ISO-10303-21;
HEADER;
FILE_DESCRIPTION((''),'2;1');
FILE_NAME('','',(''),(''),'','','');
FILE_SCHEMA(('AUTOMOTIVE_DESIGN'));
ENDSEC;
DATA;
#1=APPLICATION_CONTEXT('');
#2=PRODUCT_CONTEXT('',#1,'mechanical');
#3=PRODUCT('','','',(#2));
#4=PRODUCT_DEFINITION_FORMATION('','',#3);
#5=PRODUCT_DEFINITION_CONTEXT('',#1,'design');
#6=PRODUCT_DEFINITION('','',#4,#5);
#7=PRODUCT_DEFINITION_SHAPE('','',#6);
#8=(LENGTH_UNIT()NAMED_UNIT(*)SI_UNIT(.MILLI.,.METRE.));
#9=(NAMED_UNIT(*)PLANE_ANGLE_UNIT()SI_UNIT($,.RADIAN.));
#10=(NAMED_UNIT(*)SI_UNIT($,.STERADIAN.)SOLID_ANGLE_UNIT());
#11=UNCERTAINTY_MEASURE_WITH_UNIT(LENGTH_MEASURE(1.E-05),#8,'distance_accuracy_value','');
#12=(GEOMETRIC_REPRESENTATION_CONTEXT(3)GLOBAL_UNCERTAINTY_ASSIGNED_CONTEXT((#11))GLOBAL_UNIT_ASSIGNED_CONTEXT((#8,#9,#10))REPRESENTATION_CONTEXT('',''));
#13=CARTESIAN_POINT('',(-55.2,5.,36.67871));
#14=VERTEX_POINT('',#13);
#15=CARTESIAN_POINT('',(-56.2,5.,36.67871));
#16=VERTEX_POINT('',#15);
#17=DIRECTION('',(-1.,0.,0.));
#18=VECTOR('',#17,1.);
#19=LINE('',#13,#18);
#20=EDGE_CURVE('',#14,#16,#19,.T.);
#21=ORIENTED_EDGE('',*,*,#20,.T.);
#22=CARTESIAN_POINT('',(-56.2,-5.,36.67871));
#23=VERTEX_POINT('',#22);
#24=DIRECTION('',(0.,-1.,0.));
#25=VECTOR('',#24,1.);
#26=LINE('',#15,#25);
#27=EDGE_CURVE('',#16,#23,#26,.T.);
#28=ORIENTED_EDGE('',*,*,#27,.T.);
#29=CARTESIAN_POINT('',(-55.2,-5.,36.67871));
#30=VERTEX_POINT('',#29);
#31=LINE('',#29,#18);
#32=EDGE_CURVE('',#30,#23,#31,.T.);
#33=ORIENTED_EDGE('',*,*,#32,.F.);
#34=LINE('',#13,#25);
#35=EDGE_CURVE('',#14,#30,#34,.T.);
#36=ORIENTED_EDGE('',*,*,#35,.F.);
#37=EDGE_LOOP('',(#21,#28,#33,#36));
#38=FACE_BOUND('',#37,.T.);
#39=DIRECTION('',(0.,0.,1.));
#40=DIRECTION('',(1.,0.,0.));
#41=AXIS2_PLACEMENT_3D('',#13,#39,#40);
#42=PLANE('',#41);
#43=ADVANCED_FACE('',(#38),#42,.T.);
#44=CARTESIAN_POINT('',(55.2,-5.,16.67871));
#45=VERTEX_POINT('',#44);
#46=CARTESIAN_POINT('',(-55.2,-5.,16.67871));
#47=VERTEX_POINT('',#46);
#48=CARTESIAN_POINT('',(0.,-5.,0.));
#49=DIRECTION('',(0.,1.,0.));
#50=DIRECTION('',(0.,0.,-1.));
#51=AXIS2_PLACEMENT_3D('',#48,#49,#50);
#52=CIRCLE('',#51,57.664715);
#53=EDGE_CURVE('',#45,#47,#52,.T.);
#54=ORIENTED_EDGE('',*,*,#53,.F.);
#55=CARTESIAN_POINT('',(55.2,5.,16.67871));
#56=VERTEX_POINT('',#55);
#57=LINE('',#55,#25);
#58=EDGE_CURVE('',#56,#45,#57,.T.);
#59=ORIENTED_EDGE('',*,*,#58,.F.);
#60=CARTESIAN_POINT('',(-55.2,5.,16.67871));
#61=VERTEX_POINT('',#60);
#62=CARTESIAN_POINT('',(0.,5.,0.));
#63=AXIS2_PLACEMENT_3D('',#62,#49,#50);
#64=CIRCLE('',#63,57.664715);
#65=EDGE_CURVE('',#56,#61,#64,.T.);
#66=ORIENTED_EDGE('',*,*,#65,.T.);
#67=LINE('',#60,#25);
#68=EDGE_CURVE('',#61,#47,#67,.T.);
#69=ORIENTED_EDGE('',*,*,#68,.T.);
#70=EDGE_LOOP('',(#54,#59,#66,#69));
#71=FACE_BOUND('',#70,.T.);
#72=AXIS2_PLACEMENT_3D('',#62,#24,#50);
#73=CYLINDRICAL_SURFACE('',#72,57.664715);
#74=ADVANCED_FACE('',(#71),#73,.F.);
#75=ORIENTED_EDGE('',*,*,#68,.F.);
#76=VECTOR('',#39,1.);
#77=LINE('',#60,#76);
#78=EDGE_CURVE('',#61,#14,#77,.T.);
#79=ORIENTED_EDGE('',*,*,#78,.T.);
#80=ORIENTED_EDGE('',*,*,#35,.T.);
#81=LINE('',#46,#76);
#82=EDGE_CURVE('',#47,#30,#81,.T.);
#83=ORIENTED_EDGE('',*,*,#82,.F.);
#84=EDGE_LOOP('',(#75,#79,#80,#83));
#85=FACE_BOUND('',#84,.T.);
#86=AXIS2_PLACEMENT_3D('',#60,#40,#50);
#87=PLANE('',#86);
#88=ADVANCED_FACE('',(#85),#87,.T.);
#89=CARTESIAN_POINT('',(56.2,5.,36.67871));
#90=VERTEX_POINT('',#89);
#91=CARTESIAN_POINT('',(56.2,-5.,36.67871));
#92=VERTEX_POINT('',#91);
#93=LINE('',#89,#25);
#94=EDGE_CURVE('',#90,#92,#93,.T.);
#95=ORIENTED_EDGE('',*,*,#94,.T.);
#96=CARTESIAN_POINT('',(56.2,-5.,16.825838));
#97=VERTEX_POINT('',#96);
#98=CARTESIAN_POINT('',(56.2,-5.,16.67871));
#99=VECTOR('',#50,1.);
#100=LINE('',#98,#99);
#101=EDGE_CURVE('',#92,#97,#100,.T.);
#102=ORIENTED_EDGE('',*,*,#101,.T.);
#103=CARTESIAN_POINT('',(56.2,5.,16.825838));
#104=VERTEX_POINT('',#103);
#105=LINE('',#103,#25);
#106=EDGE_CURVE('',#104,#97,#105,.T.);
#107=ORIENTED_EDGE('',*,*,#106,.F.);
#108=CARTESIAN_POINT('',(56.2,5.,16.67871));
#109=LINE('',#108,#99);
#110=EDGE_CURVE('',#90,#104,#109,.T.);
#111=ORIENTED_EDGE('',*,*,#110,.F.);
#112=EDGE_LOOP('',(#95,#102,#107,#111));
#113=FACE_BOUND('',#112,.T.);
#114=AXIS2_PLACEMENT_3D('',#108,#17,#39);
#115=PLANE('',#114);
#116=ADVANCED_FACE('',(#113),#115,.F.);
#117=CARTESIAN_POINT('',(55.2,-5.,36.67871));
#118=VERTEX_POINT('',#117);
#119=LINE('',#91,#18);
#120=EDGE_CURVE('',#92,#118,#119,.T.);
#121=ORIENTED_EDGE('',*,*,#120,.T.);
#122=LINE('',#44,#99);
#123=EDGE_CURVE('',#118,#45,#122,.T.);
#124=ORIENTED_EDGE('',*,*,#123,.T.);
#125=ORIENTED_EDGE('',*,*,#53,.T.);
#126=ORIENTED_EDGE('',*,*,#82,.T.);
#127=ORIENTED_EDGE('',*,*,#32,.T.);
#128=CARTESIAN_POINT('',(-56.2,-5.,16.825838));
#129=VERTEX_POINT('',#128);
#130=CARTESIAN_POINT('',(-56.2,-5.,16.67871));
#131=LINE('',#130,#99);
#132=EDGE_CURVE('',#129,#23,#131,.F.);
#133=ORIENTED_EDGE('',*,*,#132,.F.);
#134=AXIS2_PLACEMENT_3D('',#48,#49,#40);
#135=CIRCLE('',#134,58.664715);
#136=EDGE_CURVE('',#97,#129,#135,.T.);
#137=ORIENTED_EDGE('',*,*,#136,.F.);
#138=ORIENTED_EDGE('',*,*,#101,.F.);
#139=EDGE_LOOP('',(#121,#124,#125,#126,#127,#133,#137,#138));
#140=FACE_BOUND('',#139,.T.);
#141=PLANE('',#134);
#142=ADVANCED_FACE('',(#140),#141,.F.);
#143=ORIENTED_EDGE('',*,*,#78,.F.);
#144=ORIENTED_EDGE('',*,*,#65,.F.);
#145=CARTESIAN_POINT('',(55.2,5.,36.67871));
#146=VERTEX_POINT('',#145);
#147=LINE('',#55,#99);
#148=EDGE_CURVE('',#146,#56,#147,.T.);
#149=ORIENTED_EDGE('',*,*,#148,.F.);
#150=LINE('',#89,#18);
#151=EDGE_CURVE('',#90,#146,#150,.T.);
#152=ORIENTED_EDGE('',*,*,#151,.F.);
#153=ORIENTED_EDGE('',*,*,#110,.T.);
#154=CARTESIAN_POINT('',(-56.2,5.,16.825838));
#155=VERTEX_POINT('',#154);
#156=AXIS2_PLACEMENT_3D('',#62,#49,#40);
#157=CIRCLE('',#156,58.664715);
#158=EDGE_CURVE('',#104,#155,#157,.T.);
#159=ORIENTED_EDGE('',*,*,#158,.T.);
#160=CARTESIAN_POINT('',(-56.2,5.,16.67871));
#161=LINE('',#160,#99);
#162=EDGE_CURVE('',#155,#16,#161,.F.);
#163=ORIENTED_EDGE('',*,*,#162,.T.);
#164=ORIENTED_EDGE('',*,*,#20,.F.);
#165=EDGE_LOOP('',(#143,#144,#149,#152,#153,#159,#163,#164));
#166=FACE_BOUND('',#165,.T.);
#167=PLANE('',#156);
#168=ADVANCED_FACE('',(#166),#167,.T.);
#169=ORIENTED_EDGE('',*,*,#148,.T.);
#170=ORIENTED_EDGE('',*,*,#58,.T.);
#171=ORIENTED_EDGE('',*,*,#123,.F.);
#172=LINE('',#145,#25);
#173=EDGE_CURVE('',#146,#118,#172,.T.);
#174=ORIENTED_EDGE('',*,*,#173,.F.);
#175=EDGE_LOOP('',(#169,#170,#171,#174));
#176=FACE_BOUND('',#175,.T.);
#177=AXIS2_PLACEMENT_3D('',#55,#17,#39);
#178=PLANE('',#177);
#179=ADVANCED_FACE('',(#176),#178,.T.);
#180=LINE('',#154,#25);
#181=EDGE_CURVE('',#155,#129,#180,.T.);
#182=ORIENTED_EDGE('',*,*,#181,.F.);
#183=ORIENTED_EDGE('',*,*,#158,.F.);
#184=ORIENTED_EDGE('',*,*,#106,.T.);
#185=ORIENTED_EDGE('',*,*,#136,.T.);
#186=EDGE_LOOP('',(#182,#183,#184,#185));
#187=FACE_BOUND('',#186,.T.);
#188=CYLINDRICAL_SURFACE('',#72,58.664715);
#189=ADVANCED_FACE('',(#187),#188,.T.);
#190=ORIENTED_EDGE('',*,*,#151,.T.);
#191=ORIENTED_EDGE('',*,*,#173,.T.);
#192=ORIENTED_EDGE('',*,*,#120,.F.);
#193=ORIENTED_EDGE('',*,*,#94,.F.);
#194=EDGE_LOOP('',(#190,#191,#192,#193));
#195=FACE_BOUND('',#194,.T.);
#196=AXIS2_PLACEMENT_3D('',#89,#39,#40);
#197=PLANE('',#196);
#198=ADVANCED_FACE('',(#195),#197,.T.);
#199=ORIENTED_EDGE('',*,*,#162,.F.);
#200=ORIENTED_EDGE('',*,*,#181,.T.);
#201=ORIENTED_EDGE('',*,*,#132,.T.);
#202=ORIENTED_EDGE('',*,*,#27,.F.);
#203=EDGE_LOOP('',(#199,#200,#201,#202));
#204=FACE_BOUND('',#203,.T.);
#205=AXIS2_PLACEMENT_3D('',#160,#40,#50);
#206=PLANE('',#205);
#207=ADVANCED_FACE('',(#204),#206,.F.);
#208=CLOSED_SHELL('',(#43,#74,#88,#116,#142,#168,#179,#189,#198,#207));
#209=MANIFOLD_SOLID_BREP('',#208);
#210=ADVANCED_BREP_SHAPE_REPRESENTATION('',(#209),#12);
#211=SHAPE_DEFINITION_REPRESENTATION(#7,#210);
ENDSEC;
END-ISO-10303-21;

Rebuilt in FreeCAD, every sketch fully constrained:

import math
import FreeCAD as App
import Part
import Sketcher
Q = App.Units.Quantity

doc = App.newDocument("Part")
body = doc.addObject("PartDesign::Body", "Body")

sketch1 = body.newObject("Sketcher::SketchObject", "Sketch")
sketch1.AttachmentSupport = (doc.getObject("XZ_Plane"), [""])
sketch1.MapMode = "FlatFace"
sketch1.addGeometry([
    Part.LineSegment(App.Vector(55.2, 16.67871, 0), App.Vector(55.2, 36.67871, 0)),
    Part.LineSegment(App.Vector(55.2, 36.67871, 0), App.Vector(56.2, 36.67871, 0)),
    Part.LineSegment(App.Vector(56.2, 36.67871, 0), App.Vector(56.2, 16.825838, 0)),
    Part.ArcOfCircle(Part.Circle(App.Vector(0, 0, 0), App.Vector(0, 0, 1), 58.664715), math.radians(163.332714), math.radians(376.667286)),
    Part.LineSegment(App.Vector(-56.2, 16.825838, 0), App.Vector(-56.2, 36.67871, 0)),
    Part.LineSegment(App.Vector(-56.2, 36.67871, 0), App.Vector(-55.2, 36.67871, 0)),
    Part.LineSegment(App.Vector(-55.2, 36.67871, 0), App.Vector(-55.2, 16.67871, 0)),
    Part.ArcOfCircle(Part.Circle(App.Vector(0, 0, 0), App.Vector(0, 0, 1), 57.664715), math.radians(163.187779), math.radians(376.812221)),
], False)
sketch1.addConstraint([
    Sketcher.Constraint("Coincident", 0, 2, 1, 1),
    Sketcher.Constraint("Coincident", 1, 2, 2, 1),
    Sketcher.Constraint("Coincident", 2, 2, 3, 2),
    Sketcher.Constraint("Coincident", 3, 1, 4, 1),
    Sketcher.Constraint("Coincident", 4, 2, 5, 1),
    Sketcher.Constraint("Coincident", 5, 2, 6, 1),
    Sketcher.Constraint("Coincident", 6, 2, 7, 1),
    Sketcher.Constraint("Coincident", 7, 2, 0, 1),
    Sketcher.Constraint("Vertical", 0),
    Sketcher.Constraint("Horizontal", 1),
    Sketcher.Constraint("Vertical", 2),
    Sketcher.Constraint("Vertical", 4),
    Sketcher.Constraint("Horizontal", 5),
    Sketcher.Constraint("Vertical", 6),
    Sketcher.Constraint("Coincident", 3, 3, -1, 1),
    Sketcher.Constraint("Coincident", 7, 3, -1, 1),
    Sketcher.Constraint("Symmetric", 1, 2, 4, 2, -2),
    Sketcher.Constraint("Horizontal", 6, 2, 7, 2),
    Sketcher.Constraint("DistanceX", 1, 1, 1, 2, Q("1 mm")),
    Sketcher.Constraint("DistanceY", 0, 1, 0, 2, Q("20 mm")),
    Sketcher.Constraint("DistanceX", -1, 1, 0, 2, Q("55.2 mm")),
    Sketcher.Constraint("Radius", 3, Q("58.664715 mm")),
    Sketcher.Constraint("Radius", 7, Q("57.664715 mm")),
])
pad1 = body.newObject("PartDesign::Pad", "Pad")
pad1.Profile = sketch1
pad1.Length = 10
pad1.Midplane = True

doc.recompute()
